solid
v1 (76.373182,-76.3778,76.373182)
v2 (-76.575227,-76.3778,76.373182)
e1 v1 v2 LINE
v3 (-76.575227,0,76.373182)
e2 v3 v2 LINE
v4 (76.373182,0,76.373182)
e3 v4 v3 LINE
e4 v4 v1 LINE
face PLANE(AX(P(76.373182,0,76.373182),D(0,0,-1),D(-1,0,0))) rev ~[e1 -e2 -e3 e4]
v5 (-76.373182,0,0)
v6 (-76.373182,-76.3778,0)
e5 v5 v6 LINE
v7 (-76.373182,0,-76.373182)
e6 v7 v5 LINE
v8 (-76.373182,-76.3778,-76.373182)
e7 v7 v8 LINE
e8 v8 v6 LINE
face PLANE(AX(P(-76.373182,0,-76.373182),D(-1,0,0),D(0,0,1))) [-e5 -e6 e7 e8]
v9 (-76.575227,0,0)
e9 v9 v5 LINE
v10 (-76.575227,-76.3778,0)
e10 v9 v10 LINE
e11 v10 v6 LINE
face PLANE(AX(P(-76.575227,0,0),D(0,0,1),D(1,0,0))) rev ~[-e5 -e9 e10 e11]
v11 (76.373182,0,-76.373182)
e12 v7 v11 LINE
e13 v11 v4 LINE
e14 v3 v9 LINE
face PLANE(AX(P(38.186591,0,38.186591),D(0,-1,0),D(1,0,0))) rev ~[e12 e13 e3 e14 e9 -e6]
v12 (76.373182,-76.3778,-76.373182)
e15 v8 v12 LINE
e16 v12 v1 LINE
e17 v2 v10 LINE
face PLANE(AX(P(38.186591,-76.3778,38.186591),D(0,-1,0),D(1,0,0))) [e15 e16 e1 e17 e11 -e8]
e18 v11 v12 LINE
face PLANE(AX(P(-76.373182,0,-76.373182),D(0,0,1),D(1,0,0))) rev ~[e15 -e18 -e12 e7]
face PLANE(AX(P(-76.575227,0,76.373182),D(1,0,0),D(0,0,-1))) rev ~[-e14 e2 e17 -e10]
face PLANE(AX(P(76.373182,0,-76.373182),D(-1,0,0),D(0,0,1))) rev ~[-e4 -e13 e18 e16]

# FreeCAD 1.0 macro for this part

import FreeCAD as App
import Part
import Sketcher

V = App.Vector
Q = App.Units.Quantity


def add_polygon(sketch, points):
    """Adds a closed chain of lines whose ends are joined by coincident constraints."""
    first, n = sketch.GeometryCount, len(points)
    for a, b in zip(points, points[1:] + points[:1]):
        sketch.addGeometry(Part.LineSegment(App.Vector(*a, 0), App.Vector(*b, 0)), False)
    for i in range(n):
        sketch.addConstraint(Sketcher.Constraint("Coincident", first + i, 2, first + (i + 1) % n, 1))

doc = App.newDocument("Part")
body = doc.addObject("PartDesign::Body", "Body")

sketch1 = doc.addObject("Sketcher::SketchObject", "Sketch")
body.addObject(sketch1)
sketch1.AttachmentSupport = (doc.XZ_Plane, [""])
sketch1.MapMode = "FlatFace"
add_polygon(sketch1, [(76.37, 76.37), (-76.58, 76.37), (-76.58, 0), (-76.37, 0), (-76.37, -76.37), (76.37, -76.37)])
sketch1.addConstraint([
    Sketcher.Constraint("Horizontal", 0),
    Sketcher.Constraint("Vertical", 1),
    Sketcher.Constraint("Horizontal", 2),
    Sketcher.Constraint("Vertical", 3),
    Sketcher.Constraint("Horizontal", 4),
    Sketcher.Constraint("Vertical", 5),
    Sketcher.Constraint("Symmetric", 3, 2, 5, 2, -1, 1),
    Sketcher.Constraint("PointOnObject", 1, 2, -1),
    Sketcher.Constraint("Equal", 4, 5),
    Sketcher.Constraint("DistanceX", 0, 2, 0, 1, 152.948409),
    Sketcher.Constraint("DistanceY", 1, 2, 1, 1, 76.373182),
])
pad1 = doc.addObject("PartDesign::Pad", "Pad")
body.addObject(pad1)
pad1.Profile = sketch1
pad1.Length = Q("3.007 in")

doc.recompute()
